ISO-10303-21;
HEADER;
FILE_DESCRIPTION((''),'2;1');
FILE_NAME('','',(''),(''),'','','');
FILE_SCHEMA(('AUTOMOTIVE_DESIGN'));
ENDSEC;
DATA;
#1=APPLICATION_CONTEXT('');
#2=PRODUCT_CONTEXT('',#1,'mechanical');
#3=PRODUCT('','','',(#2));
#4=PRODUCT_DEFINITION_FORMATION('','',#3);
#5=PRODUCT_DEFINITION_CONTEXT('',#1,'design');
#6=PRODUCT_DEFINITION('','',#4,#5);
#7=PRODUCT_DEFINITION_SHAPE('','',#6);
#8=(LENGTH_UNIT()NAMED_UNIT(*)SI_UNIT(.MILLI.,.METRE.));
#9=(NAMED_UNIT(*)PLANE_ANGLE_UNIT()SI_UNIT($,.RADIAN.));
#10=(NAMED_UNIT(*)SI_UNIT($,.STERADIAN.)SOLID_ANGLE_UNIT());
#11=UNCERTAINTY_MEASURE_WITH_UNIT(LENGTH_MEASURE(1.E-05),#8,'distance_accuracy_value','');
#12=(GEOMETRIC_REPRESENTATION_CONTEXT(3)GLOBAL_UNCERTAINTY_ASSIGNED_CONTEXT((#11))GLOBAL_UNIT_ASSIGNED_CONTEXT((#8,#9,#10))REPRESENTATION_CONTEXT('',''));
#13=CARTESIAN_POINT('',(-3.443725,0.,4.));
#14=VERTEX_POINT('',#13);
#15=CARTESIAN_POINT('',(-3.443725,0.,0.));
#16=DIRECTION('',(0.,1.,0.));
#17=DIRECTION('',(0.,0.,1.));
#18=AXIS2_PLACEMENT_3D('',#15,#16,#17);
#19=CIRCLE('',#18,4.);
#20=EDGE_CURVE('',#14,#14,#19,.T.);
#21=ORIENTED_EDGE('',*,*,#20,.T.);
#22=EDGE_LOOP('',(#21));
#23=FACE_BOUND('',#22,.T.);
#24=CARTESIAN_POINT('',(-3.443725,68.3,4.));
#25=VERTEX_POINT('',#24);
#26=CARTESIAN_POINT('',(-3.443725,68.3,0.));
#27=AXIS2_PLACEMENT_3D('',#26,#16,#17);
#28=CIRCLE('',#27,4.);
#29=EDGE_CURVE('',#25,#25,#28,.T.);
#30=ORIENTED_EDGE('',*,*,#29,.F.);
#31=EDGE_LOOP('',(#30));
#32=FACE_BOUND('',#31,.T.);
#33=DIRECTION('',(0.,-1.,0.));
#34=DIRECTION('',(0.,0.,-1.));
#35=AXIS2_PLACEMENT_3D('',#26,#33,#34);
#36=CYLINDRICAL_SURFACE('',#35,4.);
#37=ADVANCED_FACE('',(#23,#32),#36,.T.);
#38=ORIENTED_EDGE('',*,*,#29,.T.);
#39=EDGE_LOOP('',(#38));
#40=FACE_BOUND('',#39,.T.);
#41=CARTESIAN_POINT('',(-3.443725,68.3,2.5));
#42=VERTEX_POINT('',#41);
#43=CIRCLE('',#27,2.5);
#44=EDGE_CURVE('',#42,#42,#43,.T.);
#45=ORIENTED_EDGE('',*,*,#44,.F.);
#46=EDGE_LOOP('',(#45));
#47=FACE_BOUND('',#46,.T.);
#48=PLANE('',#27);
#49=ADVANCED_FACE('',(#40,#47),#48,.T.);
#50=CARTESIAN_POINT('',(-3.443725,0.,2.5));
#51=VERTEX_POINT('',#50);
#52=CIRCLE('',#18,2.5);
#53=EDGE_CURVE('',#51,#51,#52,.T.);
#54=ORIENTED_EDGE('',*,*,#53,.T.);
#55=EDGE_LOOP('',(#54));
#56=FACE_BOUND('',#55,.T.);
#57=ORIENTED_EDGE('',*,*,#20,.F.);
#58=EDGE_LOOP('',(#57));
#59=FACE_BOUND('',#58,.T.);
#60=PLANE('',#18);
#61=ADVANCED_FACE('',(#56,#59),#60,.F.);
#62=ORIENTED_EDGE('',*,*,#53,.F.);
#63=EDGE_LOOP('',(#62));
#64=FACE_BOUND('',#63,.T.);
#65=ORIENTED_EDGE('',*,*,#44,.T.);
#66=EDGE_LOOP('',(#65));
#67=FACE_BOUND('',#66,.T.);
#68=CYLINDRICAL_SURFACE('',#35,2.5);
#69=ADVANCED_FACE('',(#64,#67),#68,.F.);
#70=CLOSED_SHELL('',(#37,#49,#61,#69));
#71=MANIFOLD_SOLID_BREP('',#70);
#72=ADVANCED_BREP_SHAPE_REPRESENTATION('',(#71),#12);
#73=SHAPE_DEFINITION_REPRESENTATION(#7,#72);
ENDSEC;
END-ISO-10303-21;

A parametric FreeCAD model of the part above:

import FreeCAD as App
import Part
import Sketcher
from FreeCAD import Vector
Q = App.Units.Quantity

doc = App.newDocument("Part")
params = doc.addObject("Spreadsheet::Sheet", "Params")
for row, (alias, value) in enumerate([
    ("sketch1_diameter", "8 mm"),
    ("sketch1_diameter2", "5 mm"),
    ("pad1_length", "68.3 mm"),
], start=1):
    params.set(f"A{row}", alias)
    params.set(f"B{row}", "=" + value)
    params.setAlias(f"B{row}", alias)

body = doc.addObject("PartDesign::Body", "Body")

sketch1 = body.newObject("Sketcher::SketchObject", "Sketch")
sketch1.AttachmentSupport = (doc.getObject("XZ_Plane"), [""])
sketch1.MapMode = "FlatFace"
sketch1.addGeometry(Part.Circle(Vector(-3.4, 0, 0), Vector(0, 0, 1), 4), False)
sketch1.addGeometry(Part.Circle(Vector(-3.4, 0, 0), Vector(0, 0, 1), 2.5), False)
sketch1.addConstraint(Sketcher.Constraint("Coincident", 1, 3, 0, 3))
sketch1.addConstraint(Sketcher.Constraint("PointOnObject", 0, 3, -1))
sketch1.addConstraint(Sketcher.Constraint("Diameter", 0, Q("8 mm")))
sketch1.addConstraint(Sketcher.Constraint("Diameter", 1, Q("5 mm")))
sketch1.addConstraint(Sketcher.Constraint("DistanceX", 0, 3, -1, 1, Q("3.443725 mm")))
sketch1.setExpression("Constraints[2]", "Params.sketch1_diameter")
sketch1.setExpression("Constraints[3]", "Params.sketch1_diameter2")
pad1 = body.newObject("PartDesign::Pad", "Pad")
pad1.Profile = sketch1
pad1.setExpression("Length", "Params.pad1_length")
pad1.Reversed = True

doc.recompute()
